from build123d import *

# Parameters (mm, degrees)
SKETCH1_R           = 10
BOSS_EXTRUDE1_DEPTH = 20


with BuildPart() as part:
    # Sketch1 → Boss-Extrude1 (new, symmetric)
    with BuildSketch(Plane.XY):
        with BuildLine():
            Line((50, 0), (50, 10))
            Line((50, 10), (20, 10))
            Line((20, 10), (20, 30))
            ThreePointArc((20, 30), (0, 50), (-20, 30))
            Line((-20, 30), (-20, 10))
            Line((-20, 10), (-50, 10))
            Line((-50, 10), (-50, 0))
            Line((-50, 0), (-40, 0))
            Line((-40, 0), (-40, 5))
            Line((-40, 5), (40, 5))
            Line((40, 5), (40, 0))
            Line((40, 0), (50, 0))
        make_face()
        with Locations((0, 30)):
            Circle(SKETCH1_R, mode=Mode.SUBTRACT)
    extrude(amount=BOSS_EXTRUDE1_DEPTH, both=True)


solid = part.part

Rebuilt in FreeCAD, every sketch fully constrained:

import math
import FreeCAD as App
import Part
import Sketcher
from FreeCAD import Vector
Q = App.Units.Quantity

doc = App.newDocument("Part")
body = doc.addObject("PartDesign::Body", "Body")

# Sketch on XY plane
sketch1 = body.newObject("Sketcher::SketchObject", "Sketch")
sketch1.AttachmentSupport = (doc.getObject("XY_Plane"), [""])
sketch1.MapMode = "FlatFace"
sketch1.addGeometry([
    Part.LineSegment(Vector(50, 0, 0), Vector(50, 10, 0)),  # 0
    Part.LineSegment(Vector(50, 10, 0), Vector(20, 10, 0)),  # 1
    Part.LineSegment(Vector(20, 10, 0), Vector(20, 30, 0)),  # 2
    Part.ArcOfCircle(Part.Circle(Vector(0, 30, 0), Vector(0, 0, 1), 20), math.radians(0), math.radians(180)),  # 3
    Part.LineSegment(Vector(-20, 30, 0), Vector(-20, 10, 0)),  # 4
    Part.LineSegment(Vector(-20, 10, 0), Vector(-50, 10, 0)),  # 5
    Part.LineSegment(Vector(-50, 10, 0), Vector(-50, 0, 0)),  # 6
    Part.LineSegment(Vector(-50, 0, 0), Vector(-40, 0, 0)),  # 7
    Part.LineSegment(Vector(-40, 0, 0), Vector(-40, 5, 0)),  # 8
    Part.LineSegment(Vector(-40, 5, 0), Vector(40, 5, 0)),  # 9
    Part.LineSegment(Vector(40, 5, 0), Vector(40, 0, 0)),  # 10
    Part.LineSegment(Vector(40, 0, 0), Vector(50, 0, 0)),  # 11
    Part.Circle(Vector(0, 30, 0), Vector(0, 0, 1), 10),  # 12
], False)
sketch1.addConstraint([
    Sketcher.Constraint("Coincident", 0, 2, 1, 1),
    Sketcher.Constraint("Coincident", 1, 2, 2, 1),
    Sketcher.Constraint("Tangent", 2, 2, 3, 1),
    Sketcher.Constraint("Tangent", 3, 2, 4, 1),
    Sketcher.Constraint("Coincident", 4, 2, 5, 1),
    Sketcher.Constraint("Coincident", 5, 2, 6, 1),
    Sketcher.Constraint("Coincident", 6, 2, 7, 1),
    Sketcher.Constraint("Coincident", 7, 2, 8, 1),
    Sketcher.Constraint("Coincident", 8, 2, 9, 1),
    Sketcher.Constraint("Coincident", 9, 2, 10, 1),
    Sketcher.Constraint("Coincident", 10, 2, 11, 1),
    Sketcher.Constraint("Coincident", 11, 2, 0, 1),
    Sketcher.Constraint("Vertical", 0),
    Sketcher.Constraint("Horizontal", 1),
    Sketcher.Constraint("Vertical", 2),
    Sketcher.Constraint("Vertical", 4),
    Sketcher.Constraint("Horizontal", 5),
    Sketcher.Constraint("Vertical", 6),
    Sketcher.Constraint("Horizontal", 7),
    Sketcher.Constraint("Vertical", 8),
    Sketcher.Constraint("Horizontal", 9),
    Sketcher.Constraint("Vertical", 10),
    Sketcher.Constraint("Horizontal", 11),
    Sketcher.Constraint("Coincident", 12, 3, 3, 3),
    Sketcher.Constraint("Symmetric", 7, 2, 10, 2, -1, 1),
    Sketcher.Constraint("Symmetric", 1, 2, 4, 2, -2),
    Sketcher.Constraint("Symmetric", 6, 2, 11, 2, -2),
    Sketcher.Constraint("Equal", 11, 0),
    Sketcher.Constraint("Diameter", 12, Q("20 mm")),
    Sketcher.Constraint("Radius", 3, Q("20 mm")),
    Sketcher.Constraint("DistanceX", 1, 2, 1, 1, Q("30 mm")),
    Sketcher.Constraint("DistanceX", 7, 1, 7, 2, Q("10 mm")),
    Sketcher.Constraint("DistanceY", 2, 1, 2, 2, Q("20 mm")),
    Sketcher.Constraint("DistanceY", 8, 1, 8, 2, Q("5 mm")),
])
pad1 = body.newObject("PartDesign::Pad", "Pad")
pad1.Profile = sketch1
pad1.Length = 40
pad1.Midplane = True

doc.recompute()
